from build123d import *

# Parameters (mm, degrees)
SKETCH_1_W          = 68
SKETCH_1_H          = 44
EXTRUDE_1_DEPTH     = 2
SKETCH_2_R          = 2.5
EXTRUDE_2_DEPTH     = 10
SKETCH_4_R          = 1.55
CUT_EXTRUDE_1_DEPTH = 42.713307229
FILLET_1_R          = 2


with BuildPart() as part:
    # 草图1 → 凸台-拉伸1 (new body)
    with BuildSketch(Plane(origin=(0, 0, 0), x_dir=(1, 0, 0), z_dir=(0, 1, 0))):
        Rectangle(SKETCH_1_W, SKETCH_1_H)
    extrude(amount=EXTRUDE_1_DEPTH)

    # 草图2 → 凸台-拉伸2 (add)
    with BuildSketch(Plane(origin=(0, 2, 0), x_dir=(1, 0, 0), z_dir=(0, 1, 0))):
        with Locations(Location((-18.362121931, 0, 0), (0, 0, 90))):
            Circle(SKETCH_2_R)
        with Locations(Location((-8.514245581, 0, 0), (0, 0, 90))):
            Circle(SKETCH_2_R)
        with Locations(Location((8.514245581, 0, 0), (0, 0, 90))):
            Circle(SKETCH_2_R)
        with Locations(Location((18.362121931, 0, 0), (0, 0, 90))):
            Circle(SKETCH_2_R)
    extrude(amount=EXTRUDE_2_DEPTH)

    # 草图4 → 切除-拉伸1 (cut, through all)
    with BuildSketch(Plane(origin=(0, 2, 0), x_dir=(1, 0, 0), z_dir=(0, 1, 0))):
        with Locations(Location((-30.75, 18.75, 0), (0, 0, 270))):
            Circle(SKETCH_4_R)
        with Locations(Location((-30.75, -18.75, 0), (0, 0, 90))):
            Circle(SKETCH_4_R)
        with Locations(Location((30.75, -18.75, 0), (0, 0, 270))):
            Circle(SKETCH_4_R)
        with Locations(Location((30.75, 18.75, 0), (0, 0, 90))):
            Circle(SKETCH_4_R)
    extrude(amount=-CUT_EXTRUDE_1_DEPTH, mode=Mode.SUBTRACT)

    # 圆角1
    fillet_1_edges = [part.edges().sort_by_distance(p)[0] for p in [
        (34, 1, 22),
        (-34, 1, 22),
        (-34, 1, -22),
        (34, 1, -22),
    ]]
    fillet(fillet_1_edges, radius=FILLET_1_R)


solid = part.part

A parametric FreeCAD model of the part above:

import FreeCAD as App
import Part
import Sketcher

V = App.Vector
Q = App.Units.Quantity


def edges_at(feature, points):
    """Names of the edges that pass closest to the given points."""
    edges = feature.Shape.Edges
    near = lambda p: min(range(len(edges)), key=lambda i: edges[i].distToShape(Part.Vertex(*p))[0])
    return sorted({f"Edge{near(p) + 1}" for p in points})

doc = App.newDocument("Part")
body = doc.addObject("PartDesign::Body", "Body")

sketch1 = body.newObject("Sketcher::SketchObject", "Sketch")
sketch1.AttachmentSupport = (doc.getObject("XZ_Plane"), [""])
sketch1.MapMode = "FlatFace"
sketch1.addGeometry([
    Part.LineSegment(V(-34, -22, 0), V(-34, 22, 0)),
    Part.LineSegment(V(-34, 22, 0), V(34, 22, 0)),
    Part.LineSegment(V(34, 22, 0), V(34, -22, 0)),
    Part.LineSegment(V(34, -22, 0), V(-34, -22, 0)),
], False)
sketch1.addConstraint([
    Sketcher.Constraint("Coincident", 0, 2, 1, 1),
    Sketcher.Constraint("Coincident", 1, 2, 2, 1),
    Sketcher.Constraint("Coincident", 2, 2, 3, 1),
    Sketcher.Constraint("Coincident", 3, 2, 0, 1),
    Sketcher.Constraint("Vertical", 0),
    Sketcher.Constraint("Horizontal", 1),
    Sketcher.Constraint("Vertical", 2),
    Sketcher.Constraint("Horizontal", 3),
    Sketcher.Constraint("Symmetric", 0, 2, 2, 2, -1, 1),
    Sketcher.Constraint("DistanceX", 1, 1, 1, 2, Q("68 mm")),
    Sketcher.Constraint("DistanceY", 0, 1, 0, 2, Q("44 mm")),
])
pad1 = body.newObject("PartDesign::Pad", "Pad")
pad1.Profile = sketch1
pad1.Length = 2
pad1.Reversed = True

sketch2 = body.newObject("Sketcher::SketchObject", "Sketch001")
sketch2.AttachmentSupport = (doc.getObject("XZ_Plane"), [""])
sketch2.MapMode = "FlatFace"
sketch2.AttachmentOffset = App.Placement(V(0, 0, -2), App.Rotation())
sketch2.addGeometry([
    Part.Circle(V(-18.4, 0, 0), V(0, 0, 1), 2.5),
    Part.Circle(V(-8.5, 0, 0), V(0, 0, 1), 2.5),
    Part.Circle(V(8.5, 0, 0), V(0, 0, 1), 2.5),
    Part.Circle(V(18.4, 0, 0), V(0, 0, 1), 2.5),
], False)
sketch2.addConstraint([
    Sketcher.Constraint("Equal", 0, 1),
    Sketcher.Constraint("Equal", 1, 2),
    Sketcher.Constraint("Equal", 2, 3),
    Sketcher.Constraint("Symmetric", 1, 3, 2, 3, -1, 1),
    Sketcher.Constraint("Symmetric", 0, 3, 3, 3, -1, 1),
    Sketcher.Constraint("PointOnObject", 0, 3, -1),
    Sketcher.Constraint("PointOnObject", 1, 3, -1),
    Sketcher.Constraint("Diameter", 0, Q("5 mm")),
    Sketcher.Constraint("DistanceX", 0, 3, -1, 1, Q("18.362122 mm")),
    Sketcher.Constraint("DistanceX", 1, 3, 2, 3, Q("17.028491 mm")),
])
pad2 = body.newObject("PartDesign::Pad", "Pad001")
pad2.Profile = sketch2
pad2.Length = 10
pad2.Reversed = True

sketch3 = body.newObject("Sketcher::SketchObject", "Sketch002")
sketch3.AttachmentSupport = (doc.getObject("XZ_Plane"), [""])
sketch3.MapMode = "FlatFace"
sketch3.AttachmentOffset = App.Placement(V(0, 0, -2), App.Rotation())
sketch3.addGeometry([
    Part.Circle(V(-30.8, -18.8, 0), V(0, 0, 1), 1.6),
    Part.Circle(V(-30.8, 18.8, 0), V(0, 0, 1), 1.6),
    Part.Circle(V(30.8, 18.8, 0), V(0, 0, 1), 1.6),
    Part.Circle(V(30.8, -18.8, 0), V(0, 0, 1), 1.6),
], False)
sketch3.addConstraint([
    Sketcher.Constraint("Equal", 0, 1),
    Sketcher.Constraint("Equal", 1, 2),
    Sketcher.Constraint("Equal", 2, 3),
    Sketcher.Constraint("Symmetric", 0, 3, 2, 3, -1, 1),
    Sketcher.Constraint("Symmetric", 1, 3, 3, 3, -1, 1),
    Sketcher.Constraint("Symmetric", 1, 3, 2, 3, -2),
    Sketcher.Constraint("Diameter", 0, Q("3.1 mm")),
    Sketcher.Constraint("DistanceY", 0, 3, 1, 3, Q("37.5 mm")),
    Sketcher.Constraint("DistanceX", 1, 3, 2, 3, Q("61.5 mm")),
])
pocket1 = body.newObject("PartDesign::Pocket", "Pocket")
pocket1.Profile = sketch3
pocket1.Type = "ThroughAll"
pocket1.Reversed = True
doc.recompute()

fillet = body.newObject("PartDesign::Fillet", "Fillet")
fillet.Base = (pocket1, edges_at(pocket1, [
    (34, 1, 22),
    (-34, 1, 22),
    (-34, 1, -22),
    (34, 1, -22),
]))
fillet.Radius = 2

doc.recompute()
